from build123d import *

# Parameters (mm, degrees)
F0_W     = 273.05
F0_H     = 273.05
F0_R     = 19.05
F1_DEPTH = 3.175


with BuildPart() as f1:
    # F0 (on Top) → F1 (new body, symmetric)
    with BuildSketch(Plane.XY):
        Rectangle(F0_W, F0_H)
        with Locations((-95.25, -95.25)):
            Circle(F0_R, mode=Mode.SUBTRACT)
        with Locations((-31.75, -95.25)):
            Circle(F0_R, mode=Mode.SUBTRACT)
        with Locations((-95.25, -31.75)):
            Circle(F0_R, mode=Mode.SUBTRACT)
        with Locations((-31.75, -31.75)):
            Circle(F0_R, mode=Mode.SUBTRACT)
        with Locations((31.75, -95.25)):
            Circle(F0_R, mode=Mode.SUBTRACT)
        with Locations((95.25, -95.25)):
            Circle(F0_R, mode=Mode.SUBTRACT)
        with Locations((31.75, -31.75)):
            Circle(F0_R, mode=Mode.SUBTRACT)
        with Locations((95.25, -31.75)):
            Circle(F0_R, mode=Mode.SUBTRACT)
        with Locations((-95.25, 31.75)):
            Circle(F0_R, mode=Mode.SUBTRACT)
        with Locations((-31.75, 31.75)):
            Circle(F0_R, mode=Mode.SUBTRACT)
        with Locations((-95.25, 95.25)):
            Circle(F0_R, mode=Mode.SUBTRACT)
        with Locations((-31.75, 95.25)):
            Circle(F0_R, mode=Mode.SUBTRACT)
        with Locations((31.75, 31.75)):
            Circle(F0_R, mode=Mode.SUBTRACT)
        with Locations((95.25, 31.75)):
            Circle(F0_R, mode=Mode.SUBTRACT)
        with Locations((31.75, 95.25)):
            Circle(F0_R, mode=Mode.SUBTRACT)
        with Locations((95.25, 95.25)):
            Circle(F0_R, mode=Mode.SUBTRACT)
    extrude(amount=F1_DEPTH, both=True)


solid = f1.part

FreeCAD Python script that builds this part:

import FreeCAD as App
import Part
import Sketcher

V = App.Vector
Q = App.Units.Quantity


def add_polygon(sketch, points):
    """Adds a closed chain of lines whose ends are joined by coincident constraints."""
    first, n = sketch.GeometryCount, len(points)
    for a, b in zip(points, points[1:] + points[:1]):
        sketch.addGeometry(Part.LineSegment(App.Vector(*a, 0), App.Vector(*b, 0)), False)
    for i in range(n):
        sketch.addConstraint(Sketcher.Constraint("Coincident", first + i, 2, first + (i + 1) % n, 1))

doc = App.newDocument("Part")
body = doc.addObject("PartDesign::Body", "Body")

sketch1 = body.newObject("Sketcher::SketchObject", "Sketch")
sketch1.AttachmentSupport = (doc.getObject("XY_Plane"), [""])
sketch1.MapMode = "FlatFace"
add_polygon(sketch1, [(-137, 137), (-137, -137), (137, -137), (137, 137)])
sketch1.addGeometry(Part.Circle(V(-95, -95, 0), V(0, 0, 1), 19), False)
sketch1.addGeometry(Part.Circle(V(-32, -95, 0), V(0, 0, 1), 19), False)
sketch1.addGeometry(Part.Circle(V(-95, -32, 0), V(0, 0, 1), 19), False)
sketch1.addGeometry(Part.Circle(V(-32, -32, 0), V(0, 0, 1), 19), False)
sketch1.addGeometry(Part.Circle(V(32, -95, 0), V(0, 0, 1), 19), False)
sketch1.addGeometry(Part.Circle(V(95, -95, 0), V(0, 0, 1), 19), False)
sketch1.addGeometry(Part.Circle(V(32, -32, 0), V(0, 0, 1), 19), False)
sketch1.addGeometry(Part.Circle(V(95, -32, 0), V(0, 0, 1), 19), False)
sketch1.addGeometry(Part.Circle(V(-95, 32, 0), V(0, 0, 1), 19), False)
sketch1.addGeometry(Part.Circle(V(-32, 32, 0), V(0, 0, 1), 19), False)
sketch1.addGeometry(Part.Circle(V(-95, 95, 0), V(0, 0, 1), 19), False)
sketch1.addGeometry(Part.Circle(V(-32, 95, 0), V(0, 0, 1), 19), False)
sketch1.addGeometry(Part.Circle(V(32, 32, 0), V(0, 0, 1), 19), False)
sketch1.addGeometry(Part.Circle(V(95, 32, 0), V(0, 0, 1), 19), False)
sketch1.addGeometry(Part.Circle(V(32, 95, 0), V(0, 0, 1), 19), False)
sketch1.addGeometry(Part.Circle(V(95, 95, 0), V(0, 0, 1), 19), False)
sketch1.addConstraint([
    Sketcher.Constraint("Vertical", 0),
    Sketcher.Constraint("Horizontal", 1),
    Sketcher.Constraint("Vertical", 2),
    Sketcher.Constraint("Horizontal", 3),
    Sketcher.Constraint("Equal", 4, 5),
    Sketcher.Constraint("Equal", 5, 6),
    Sketcher.Constraint("Equal", 6, 7),
    Sketcher.Constraint("Equal", 7, 8),
    Sketcher.Constraint("Equal", 8, 9),
    Sketcher.Constraint("Equal", 9, 10),
    Sketcher.Constraint("Equal", 10, 11),
    Sketcher.Constraint("Equal", 11, 12),
    Sketcher.Constraint("Equal", 12, 13),
    Sketcher.Constraint("Equal", 13, 14),
    Sketcher.Constraint("Equal", 14, 15),
    Sketcher.Constraint("Equal", 15, 16),
    Sketcher.Constraint("Equal", 16, 17),
    Sketcher.Constraint("Equal", 17, 18),
    Sketcher.Constraint("Equal", 18, 19),
    Sketcher.Constraint("Symmetric", 11, 3, 12, 3, -1, 1),
    Sketcher.Constraint("Symmetric", 10, 3, 13, 3, -1, 1),
    Sketcher.Constraint("Symmetric", 9, 3, 14, 3, -1, 1),
    Sketcher.Constraint("Symmetric", 8, 3, 15, 3, -1, 1),
    Sketcher.Constraint("Symmetric", 7, 3, 16, 3, -1, 1),
    Sketcher.Constraint("Symmetric", 6, 3, 17, 3, -1, 1),
    Sketcher.Constraint("Symmetric", 5, 3, 18, 3, -1, 1),
    Sketcher.Constraint("Symmetric", 4, 3, 19, 3, -1, 1),
    Sketcher.Constraint("Symmetric", 0, 2, 2, 2, -1, 1),
    Sketcher.Constraint("Symmetric", 5, 3, 8, 3, -2),
    Sketcher.Constraint("Symmetric", 4, 3, 9, 3, -2),
    Sketcher.Constraint("Symmetric", 7, 3, 10, 3, -2),
    Sketcher.Constraint("Symmetric", 6, 3, 11, 3, -2),
    Sketcher.Constraint("Horizontal", 4, 3, 5, 3),
    Sketcher.Constraint("Horizontal", 6, 3, 7, 3),
    Sketcher.Constraint("Vertical", 4, 3, 6, 3),
    Sketcher.Constraint("Vertical", 5, 3, 7, 3),
    Sketcher.Constraint("Equal", 3, 0),
    Sketcher.Constraint("Diameter", 4, Q("1.5 in")),
    Sketcher.Constraint("DistanceX", 4, 3, 8, 3, Q("5 in")),
    Sketcher.Constraint("DistanceY", 4, 3, 12, 3, Q("5 in")),
    Sketcher.Constraint("DistanceX", 1, 1, 1, 2, Q("10.75 in")),
    Sketcher.Constraint("DistanceX", 4, 3, 5, 3, Q("2.5 in")),
    Sketcher.Constraint("DistanceY", 4, 3, 6, 3, Q("2.5 in")),
])
pad1 = body.newObject("PartDesign::Pad", "Pad")
pad1.Profile = sketch1
pad1.Length = Q("0.25 in")
pad1.Midplane = True

doc.recompute()
